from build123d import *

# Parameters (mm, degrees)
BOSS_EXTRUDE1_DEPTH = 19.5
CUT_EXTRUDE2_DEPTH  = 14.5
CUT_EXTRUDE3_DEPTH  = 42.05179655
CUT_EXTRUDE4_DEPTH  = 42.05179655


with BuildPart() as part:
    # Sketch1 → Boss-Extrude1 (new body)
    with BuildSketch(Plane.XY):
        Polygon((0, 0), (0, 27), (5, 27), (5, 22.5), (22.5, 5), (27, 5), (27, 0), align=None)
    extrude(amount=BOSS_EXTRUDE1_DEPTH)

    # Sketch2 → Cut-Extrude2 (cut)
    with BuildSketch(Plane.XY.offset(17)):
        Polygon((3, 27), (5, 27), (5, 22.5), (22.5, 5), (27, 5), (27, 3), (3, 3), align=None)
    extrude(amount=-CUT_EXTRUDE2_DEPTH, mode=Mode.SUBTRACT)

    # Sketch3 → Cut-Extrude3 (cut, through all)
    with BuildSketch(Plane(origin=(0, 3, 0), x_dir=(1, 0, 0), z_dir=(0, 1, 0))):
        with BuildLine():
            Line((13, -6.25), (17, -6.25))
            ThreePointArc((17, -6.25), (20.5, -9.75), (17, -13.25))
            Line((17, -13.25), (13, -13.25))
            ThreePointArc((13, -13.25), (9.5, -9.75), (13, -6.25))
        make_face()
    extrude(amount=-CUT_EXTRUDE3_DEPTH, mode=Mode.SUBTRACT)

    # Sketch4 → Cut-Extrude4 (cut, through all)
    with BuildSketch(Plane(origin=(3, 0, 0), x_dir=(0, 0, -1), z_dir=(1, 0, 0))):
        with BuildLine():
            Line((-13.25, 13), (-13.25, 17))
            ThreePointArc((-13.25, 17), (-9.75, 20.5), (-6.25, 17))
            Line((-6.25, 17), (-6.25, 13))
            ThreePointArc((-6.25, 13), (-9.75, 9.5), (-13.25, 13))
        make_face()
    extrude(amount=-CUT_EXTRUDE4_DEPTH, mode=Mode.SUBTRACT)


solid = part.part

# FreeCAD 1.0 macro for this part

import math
import FreeCAD as App
import Part
import Sketcher
from FreeCAD import Vector


def add_polygon(sketch, points):
    """Adds a closed chain of lines whose ends are joined by coincident constraints."""
    first, n = sketch.GeometryCount, len(points)
    for a, b in zip(points, points[1:] + points[:1]):
        sketch.addGeometry(Part.LineSegment(App.Vector(*a, 0), App.Vector(*b, 0)), False)
    for i in range(n):
        sketch.addConstraint(Sketcher.Constraint("Coincident", first + i, 2, first + (i + 1) % n, 1))

doc = App.newDocument("Part")
params = doc.addObject("Spreadsheet::Sheet", "Params")
for row, (alias, value) in enumerate([
    ("sketch1_width", "27 mm"),
    ("sketch1_width2", "5 mm"),
    ("sketch1_width3", "4.5 mm"),
    ("pad1_length", "19.5 mm"),
    ("sketch2_width", "2 mm"),
    ("sketch2_width2", "24 mm"),
    ("sketch2_width3", "4.5 mm"),
    ("pocket1_length", "14.5 mm"),
    ("sketch3_radius", "3.5 mm"),
    ("sketch3_width", "4 mm"),
    ("sketch4_radius", "3.5 mm"),
    ("sketch4_width", "4 mm"),
], start=1):
    params.set(f"A{row}", alias)
    params.set(f"B{row}", "=" + value)
    params.setAlias(f"B{row}", alias)

body = doc.addObject("PartDesign::Body", "Body")

# Sketch on XY plane
sketch1 = body.newObject("Sketcher::SketchObject", "Sketch")
sketch1.AttachmentSupport = (doc.getObject("XY_Plane"), [""])
sketch1.MapMode = "FlatFace"
add_polygon(sketch1, [(0, 27), (0, 0), (27, 0), (27, 5), (22.5, 5), (5, 22.5), (5, 27)])  # lines 0-6
sketch1.addConstraint([
    Sketcher.Constraint("Vertical", 0),
    Sketcher.Constraint("Horizontal", 1),
    Sketcher.Constraint("Vertical", 2),
    Sketcher.Constraint("Horizontal", 3),
    Sketcher.Constraint("Vertical", 5),
    Sketcher.Constraint("Horizontal", 6),
    Sketcher.Constraint("Coincident", 0, 2, -1, 1),
    Sketcher.Constraint("Equal", 1, 0),
    Sketcher.Constraint("Equal", 6, 2),
    Sketcher.Constraint("Equal", 3, 5),
    Sketcher.Constraint("DistanceX", 1, 1, 1, 2, 27.0),
    Sketcher.Constraint("DistanceX", 6, 2, 6, 1, 5.0),
    Sketcher.Constraint("DistanceX", 3, 2, 3, 1, 4.5),
])
sketch1.setExpression("Constraints[17]", "Params.sketch1_width")
sketch1.setExpression("Constraints[18]", "Params.sketch1_width2")
sketch1.setExpression("Constraints[19]", "Params.sketch1_width3")
pad1 = body.newObject("PartDesign::Pad", "Pad")
pad1.Profile = sketch1
pad1.setExpression("Length", "Params.pad1_length")

# Sketch on XY plane
sketch2 = body.newObject("Sketcher::SketchObject", "Sketch001")
sketch2.AttachmentSupport = (doc.getObject("XY_Plane"), [""])
sketch2.MapMode = "FlatFace"
sketch2.AttachmentOffset = App.Placement(Vector(0, 0, 17), App.Rotation())
add_polygon(sketch2, [(5, 27), (3, 27), (3, 3), (27, 3), (27, 5), (22.5, 5), (5, 22.5)])  # lines 0-6
sketch2.addConstraint([
    Sketcher.Constraint("Horizontal", 0),
    Sketcher.Constraint("Vertical", 1),
    Sketcher.Constraint("Horizontal", 2),
    Sketcher.Constraint("Vertical", 3),
    Sketcher.Constraint("Horizontal", 4),
    Sketcher.Constraint("Vertical", 6),
    Sketcher.Constraint("Equal", 2, 1),
    Sketcher.Constraint("Equal", 0, 3),
    Sketcher.Constraint("Equal", 4, 6),
    Sketcher.Constraint("DistanceX", 0, 2, 0, 1, 2.0),
    Sketcher.Constraint("DistanceX", 2, 1, 2, 2, 24.0),
    Sketcher.Constraint("DistanceX", 4, 2, 4, 1, 4.5),
    Sketcher.Constraint("DistanceX", -1, 1, 0, 2, 3.0),
    Sketcher.Constraint("DistanceY", -1, 1, 0, 2, 27.0),
])
sketch2.setExpression("Constraints[16]", "Params.sketch2_width")
sketch2.setExpression("Constraints[17]", "Params.sketch2_width2")
sketch2.setExpression("Constraints[18]", "Params.sketch2_width3")
pocket1 = body.newObject("PartDesign::Pocket", "Pocket")
pocket1.Profile = sketch2
pocket1.setExpression("Length", "Params.pocket1_length")

# Sketch on XZ plane
sketch3 = body.newObject("Sketcher::SketchObject", "Sketch002")
sketch3.AttachmentSupport = (doc.getObject("XZ_Plane"), [""])
sketch3.MapMode = "FlatFace"
sketch3.AttachmentOffset = App.Placement(Vector(0, 0, -3), App.Rotation())
sketch3.addGeometry([
    Part.LineSegment(Vector(17, 6.2, 0), Vector(13, 6.2, 0)),
    Part.ArcOfCircle(Part.Circle(Vector(13, 9.8, 0), Vector(0, 0, 1), 3.5), math.radians(90), math.radians(270)),
    Part.LineSegment(Vector(13, 13.2, 0), Vector(17, 13.2, 0)),
    Part.ArcOfCircle(Part.Circle(Vector(17, 9.8, 0), Vector(0, 0, 1), 3.5), math.radians(-90), math.radians(90)),
], False)
sketch3.addConstraint([
    Sketcher.Constraint("Tangent", 0, 2, 1, 2),
    Sketcher.Constraint("Tangent", 1, 1, 2, 1),
    Sketcher.Constraint("Tangent", 2, 2, 3, 2),
    Sketcher.Constraint("Tangent", 3, 1, 0, 1),
    Sketcher.Constraint("Horizontal", 0),
    Sketcher.Constraint("Horizontal", 2),
    Sketcher.Constraint("Radius", 1, 3.5),
    Sketcher.Constraint("DistanceX", 0, 2, 0, 1, 4.0),
    Sketcher.Constraint("DistanceX", -1, 1, 1, 3, 13.0),
    Sketcher.Constraint("DistanceY", -1, 1, 1, 3, 9.75),
])
sketch3.setExpression("Constraints[6]", "Params.sketch3_radius")
sketch3.setExpression("Constraints[7]", "Params.sketch3_width")
pocket2 = body.newObject("PartDesign::Pocket", "Pocket001")
pocket2.Profile = sketch3
pocket2.Type = "ThroughAll"
pocket2.Reversed = True

# Sketch on YZ plane
sketch4 = body.newObject("Sketcher::SketchObject", "Sketch003")
sketch4.AttachmentSupport = (doc.getObject("YZ_Plane"), [""])
sketch4.MapMode = "FlatFace"
sketch4.AttachmentOffset = App.Placement(Vector(0, 0, 3), App.Rotation())
sketch4.addGeometry([
    Part.LineSegment(Vector(17, 13.2, 0), Vector(13, 13.2, 0)),
    Part.ArcOfCircle(Part.Circle(Vector(13, 9.8, 0), Vector(0, 0, 1), 3.5), math.radians(90), math.radians(270)),
    Part.LineSegment(Vector(13, 6.2, 0), Vector(17, 6.2, 0)),
    Part.ArcOfCircle(Part.Circle(Vector(17, 9.8, 0), Vector(0, 0, 1), 3.5), math.radians(-90), math.radians(90)),
], False)
sketch4.addConstraint([
    Sketcher.Constraint("Tangent", 0, 2, 1, 1),
    Sketcher.Constraint("Tangent", 1, 2, 2, 1),
    Sketcher.Constraint("Tangent", 2, 2, 3, 1),
    Sketcher.Constraint("Tangent", 3, 2, 0, 1),
    Sketcher.Constraint("Horizontal", 0),
    Sketcher.Constraint("Horizontal", 2),
    Sketcher.Constraint("Radius", 1, 3.5),
    Sketcher.Constraint("DistanceX", 0, 2, 0, 1, 4.0),
    Sketcher.Constraint("DistanceX", -1, 1, 1, 3, 13.0),
    Sketcher.Constraint("DistanceY", -1, 1, 1, 3, 9.75),
])
sketch4.setExpression("Constraints[6]", "Params.sketch4_radius")
sketch4.setExpression("Constraints[7]", "Params.sketch4_width")
pocket3 = body.newObject("PartDesign::Pocket", "Pocket002")
pocket3.Profile = sketch4
pocket3.Type = "ThroughAll"

doc.recompute()
